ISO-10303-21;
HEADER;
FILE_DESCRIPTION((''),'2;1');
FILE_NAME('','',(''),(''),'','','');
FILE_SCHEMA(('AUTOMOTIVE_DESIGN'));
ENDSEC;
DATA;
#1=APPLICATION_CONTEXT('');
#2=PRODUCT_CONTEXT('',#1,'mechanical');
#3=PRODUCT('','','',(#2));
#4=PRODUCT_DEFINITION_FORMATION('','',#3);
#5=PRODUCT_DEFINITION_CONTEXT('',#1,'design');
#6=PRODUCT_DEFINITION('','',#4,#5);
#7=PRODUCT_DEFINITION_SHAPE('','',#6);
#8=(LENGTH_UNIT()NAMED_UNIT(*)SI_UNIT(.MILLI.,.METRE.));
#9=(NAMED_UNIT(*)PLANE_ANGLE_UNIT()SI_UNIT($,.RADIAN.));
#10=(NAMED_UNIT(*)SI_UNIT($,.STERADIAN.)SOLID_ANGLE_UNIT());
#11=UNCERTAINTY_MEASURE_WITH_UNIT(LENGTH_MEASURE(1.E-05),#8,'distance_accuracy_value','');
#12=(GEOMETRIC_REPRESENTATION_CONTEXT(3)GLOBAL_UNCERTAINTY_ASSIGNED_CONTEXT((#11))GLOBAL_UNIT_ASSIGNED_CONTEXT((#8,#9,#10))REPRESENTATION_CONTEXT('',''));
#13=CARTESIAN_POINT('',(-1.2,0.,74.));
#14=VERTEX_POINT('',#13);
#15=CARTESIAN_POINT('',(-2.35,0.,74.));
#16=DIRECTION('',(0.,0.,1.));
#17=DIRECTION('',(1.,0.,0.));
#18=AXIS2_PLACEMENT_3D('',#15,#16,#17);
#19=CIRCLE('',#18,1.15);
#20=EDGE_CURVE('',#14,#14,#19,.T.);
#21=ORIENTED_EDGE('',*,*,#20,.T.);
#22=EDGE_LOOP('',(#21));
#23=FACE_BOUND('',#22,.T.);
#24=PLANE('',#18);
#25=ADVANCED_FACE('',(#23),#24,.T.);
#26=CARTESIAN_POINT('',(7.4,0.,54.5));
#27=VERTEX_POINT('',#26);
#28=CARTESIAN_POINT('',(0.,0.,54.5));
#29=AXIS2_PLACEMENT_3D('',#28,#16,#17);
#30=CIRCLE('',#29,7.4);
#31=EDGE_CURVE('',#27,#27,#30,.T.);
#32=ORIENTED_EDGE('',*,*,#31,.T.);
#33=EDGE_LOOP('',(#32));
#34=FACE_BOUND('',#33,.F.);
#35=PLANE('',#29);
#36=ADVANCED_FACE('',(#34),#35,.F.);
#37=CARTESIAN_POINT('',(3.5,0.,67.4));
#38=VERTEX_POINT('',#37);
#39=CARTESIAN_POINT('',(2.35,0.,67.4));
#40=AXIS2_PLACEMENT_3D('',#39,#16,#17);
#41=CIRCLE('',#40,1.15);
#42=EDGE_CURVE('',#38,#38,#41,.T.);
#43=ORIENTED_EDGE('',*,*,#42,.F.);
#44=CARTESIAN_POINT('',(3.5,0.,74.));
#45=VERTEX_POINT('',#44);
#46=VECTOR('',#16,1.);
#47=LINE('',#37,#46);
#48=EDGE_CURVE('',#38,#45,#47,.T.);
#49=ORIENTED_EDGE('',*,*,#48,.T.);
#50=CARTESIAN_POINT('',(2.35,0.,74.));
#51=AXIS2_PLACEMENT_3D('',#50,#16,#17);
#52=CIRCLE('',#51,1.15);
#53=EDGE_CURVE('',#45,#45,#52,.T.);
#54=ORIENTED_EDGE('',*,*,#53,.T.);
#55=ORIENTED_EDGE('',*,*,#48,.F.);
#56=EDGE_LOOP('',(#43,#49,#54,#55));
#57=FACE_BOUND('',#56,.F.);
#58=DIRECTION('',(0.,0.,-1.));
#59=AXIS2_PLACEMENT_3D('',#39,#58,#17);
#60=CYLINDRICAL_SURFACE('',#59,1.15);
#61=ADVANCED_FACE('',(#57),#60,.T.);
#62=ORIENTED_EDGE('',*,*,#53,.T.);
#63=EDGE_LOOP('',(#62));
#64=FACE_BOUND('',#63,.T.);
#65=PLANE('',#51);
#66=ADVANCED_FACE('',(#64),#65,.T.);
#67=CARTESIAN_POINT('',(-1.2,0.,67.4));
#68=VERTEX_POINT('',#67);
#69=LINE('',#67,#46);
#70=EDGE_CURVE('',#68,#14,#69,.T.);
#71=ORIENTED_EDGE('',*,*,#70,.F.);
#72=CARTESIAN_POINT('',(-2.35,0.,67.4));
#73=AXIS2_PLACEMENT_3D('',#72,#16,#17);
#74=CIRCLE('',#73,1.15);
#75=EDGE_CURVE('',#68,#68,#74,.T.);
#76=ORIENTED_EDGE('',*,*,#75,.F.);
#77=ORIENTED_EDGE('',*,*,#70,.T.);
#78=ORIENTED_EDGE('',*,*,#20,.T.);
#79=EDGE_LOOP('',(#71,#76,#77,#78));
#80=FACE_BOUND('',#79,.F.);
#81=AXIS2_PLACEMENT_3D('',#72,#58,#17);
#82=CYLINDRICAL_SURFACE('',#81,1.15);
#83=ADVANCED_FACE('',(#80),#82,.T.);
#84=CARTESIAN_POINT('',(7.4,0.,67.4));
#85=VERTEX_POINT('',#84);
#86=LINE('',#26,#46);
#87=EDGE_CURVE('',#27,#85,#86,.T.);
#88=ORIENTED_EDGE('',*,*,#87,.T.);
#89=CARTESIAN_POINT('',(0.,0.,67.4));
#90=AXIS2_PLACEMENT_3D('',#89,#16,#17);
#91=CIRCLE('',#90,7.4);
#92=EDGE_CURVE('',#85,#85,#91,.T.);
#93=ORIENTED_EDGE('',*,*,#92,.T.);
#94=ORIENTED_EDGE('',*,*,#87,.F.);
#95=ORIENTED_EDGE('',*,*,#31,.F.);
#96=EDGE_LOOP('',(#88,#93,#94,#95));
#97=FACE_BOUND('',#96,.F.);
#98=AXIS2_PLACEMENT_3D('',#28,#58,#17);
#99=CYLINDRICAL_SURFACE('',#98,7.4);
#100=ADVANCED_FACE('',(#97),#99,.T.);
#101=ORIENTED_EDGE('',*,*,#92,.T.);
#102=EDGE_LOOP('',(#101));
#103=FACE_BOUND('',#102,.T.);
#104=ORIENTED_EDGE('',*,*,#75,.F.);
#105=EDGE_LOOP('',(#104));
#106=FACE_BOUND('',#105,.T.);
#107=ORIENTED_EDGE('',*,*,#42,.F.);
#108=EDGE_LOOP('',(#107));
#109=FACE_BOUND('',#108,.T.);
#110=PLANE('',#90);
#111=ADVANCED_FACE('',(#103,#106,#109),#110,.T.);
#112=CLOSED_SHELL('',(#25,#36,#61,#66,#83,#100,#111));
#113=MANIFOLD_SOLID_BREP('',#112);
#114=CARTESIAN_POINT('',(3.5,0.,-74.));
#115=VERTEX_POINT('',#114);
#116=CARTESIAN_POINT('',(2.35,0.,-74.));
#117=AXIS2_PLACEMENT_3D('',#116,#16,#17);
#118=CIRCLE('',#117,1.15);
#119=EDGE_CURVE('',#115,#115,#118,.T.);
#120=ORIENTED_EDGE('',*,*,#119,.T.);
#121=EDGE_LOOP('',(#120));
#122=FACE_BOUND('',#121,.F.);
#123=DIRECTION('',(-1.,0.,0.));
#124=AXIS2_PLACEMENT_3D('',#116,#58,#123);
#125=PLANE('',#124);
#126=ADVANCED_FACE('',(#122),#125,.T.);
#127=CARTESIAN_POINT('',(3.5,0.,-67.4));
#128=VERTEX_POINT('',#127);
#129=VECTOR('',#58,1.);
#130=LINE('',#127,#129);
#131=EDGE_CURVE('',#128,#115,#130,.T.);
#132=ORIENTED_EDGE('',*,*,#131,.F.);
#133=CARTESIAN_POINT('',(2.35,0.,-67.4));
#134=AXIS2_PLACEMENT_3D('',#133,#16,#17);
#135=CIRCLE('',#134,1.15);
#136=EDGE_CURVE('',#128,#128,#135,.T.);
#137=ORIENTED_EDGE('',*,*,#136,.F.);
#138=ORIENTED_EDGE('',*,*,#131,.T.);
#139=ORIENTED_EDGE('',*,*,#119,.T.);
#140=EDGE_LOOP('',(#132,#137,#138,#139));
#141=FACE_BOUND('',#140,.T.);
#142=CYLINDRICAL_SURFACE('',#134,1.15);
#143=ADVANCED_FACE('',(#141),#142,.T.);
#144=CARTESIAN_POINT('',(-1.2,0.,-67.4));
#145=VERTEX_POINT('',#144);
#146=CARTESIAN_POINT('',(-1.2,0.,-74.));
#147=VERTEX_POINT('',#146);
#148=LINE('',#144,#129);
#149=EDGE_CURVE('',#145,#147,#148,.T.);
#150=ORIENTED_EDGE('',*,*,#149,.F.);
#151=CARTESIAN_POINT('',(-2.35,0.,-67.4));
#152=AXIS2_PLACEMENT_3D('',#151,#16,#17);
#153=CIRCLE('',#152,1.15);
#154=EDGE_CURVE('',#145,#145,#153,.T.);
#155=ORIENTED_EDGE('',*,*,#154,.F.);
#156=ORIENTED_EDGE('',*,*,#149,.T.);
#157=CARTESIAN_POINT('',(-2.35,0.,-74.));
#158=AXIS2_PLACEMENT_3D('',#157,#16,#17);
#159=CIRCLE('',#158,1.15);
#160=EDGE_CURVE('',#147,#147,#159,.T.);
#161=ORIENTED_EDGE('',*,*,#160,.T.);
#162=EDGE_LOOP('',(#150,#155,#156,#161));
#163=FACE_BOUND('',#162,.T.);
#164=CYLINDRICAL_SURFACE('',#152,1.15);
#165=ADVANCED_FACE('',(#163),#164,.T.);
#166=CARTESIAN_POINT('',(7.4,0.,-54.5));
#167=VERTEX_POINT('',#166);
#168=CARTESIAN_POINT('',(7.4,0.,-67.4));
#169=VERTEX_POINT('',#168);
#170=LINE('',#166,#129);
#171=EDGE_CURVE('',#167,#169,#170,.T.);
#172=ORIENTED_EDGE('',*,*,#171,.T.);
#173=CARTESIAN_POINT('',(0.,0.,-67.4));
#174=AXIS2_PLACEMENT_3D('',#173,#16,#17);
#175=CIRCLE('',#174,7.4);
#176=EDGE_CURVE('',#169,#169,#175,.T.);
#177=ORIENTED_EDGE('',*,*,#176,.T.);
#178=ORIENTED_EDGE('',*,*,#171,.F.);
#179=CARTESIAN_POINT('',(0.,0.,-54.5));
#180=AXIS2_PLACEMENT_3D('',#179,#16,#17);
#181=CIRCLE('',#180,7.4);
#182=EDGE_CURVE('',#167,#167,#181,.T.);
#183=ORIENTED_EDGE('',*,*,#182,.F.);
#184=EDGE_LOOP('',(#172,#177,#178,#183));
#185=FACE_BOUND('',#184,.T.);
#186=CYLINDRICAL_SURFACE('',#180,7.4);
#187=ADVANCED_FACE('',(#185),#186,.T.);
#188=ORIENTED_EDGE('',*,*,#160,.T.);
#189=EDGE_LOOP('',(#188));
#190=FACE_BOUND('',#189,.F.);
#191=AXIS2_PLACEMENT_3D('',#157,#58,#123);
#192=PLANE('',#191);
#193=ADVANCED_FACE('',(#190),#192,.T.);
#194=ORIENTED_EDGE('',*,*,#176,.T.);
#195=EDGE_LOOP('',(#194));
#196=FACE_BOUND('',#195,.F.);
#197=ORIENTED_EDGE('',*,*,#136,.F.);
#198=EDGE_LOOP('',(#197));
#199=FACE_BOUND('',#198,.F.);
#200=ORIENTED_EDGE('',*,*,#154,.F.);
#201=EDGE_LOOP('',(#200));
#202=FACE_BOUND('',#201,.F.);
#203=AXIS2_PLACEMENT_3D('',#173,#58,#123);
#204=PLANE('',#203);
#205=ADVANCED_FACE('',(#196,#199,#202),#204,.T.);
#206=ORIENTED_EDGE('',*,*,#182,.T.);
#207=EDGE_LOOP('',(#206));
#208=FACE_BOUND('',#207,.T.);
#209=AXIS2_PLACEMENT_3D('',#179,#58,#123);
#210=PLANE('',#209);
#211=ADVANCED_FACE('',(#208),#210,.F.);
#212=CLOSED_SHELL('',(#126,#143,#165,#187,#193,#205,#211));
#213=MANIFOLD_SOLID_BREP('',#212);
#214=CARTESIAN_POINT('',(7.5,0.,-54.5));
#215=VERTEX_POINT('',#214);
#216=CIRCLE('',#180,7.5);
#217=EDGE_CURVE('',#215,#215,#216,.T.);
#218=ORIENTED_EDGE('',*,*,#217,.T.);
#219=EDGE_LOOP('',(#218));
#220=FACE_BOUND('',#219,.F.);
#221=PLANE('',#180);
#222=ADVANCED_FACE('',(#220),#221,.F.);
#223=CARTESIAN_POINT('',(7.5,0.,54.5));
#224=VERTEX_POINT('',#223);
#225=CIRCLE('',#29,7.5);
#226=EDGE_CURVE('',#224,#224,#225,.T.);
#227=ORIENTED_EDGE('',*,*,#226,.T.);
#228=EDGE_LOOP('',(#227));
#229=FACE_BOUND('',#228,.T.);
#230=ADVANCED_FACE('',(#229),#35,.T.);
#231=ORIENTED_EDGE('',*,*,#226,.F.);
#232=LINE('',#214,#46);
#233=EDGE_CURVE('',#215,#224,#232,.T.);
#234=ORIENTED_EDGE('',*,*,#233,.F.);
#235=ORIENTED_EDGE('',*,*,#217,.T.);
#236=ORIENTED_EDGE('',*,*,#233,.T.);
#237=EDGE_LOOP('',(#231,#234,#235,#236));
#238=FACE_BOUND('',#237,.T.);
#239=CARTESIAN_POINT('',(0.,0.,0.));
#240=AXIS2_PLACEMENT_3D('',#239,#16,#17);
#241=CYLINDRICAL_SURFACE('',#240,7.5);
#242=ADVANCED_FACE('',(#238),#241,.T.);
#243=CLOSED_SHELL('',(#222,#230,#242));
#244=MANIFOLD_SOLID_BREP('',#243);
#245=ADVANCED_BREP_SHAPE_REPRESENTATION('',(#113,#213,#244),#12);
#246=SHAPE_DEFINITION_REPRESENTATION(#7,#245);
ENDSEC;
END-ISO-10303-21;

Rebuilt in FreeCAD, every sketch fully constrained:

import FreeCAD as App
import Part
import Sketcher

V = App.Vector
Q = App.Units.Quantity

doc = App.newDocument("Part")
body = doc.addObject("PartDesign::Body", "Body")

# Sketch on XY plane
sketch1 = body.newObject("Sketcher::SketchObject", "Sketch")
sketch1.AttachmentSupport = (doc.getObject("XY_Plane"), [""])
sketch1.MapMode = "FlatFace"
sketch1.addGeometry(Part.Circle(V(0, 0, 0), V(0, 0, 1), 7.5), False)
sketch1.addConstraint([
    Sketcher.Constraint("Coincident", 0, 3, -1, 1),
    Sketcher.Constraint("Diameter", 0, Q("15 mm")),
])
pad1 = body.newObject("PartDesign::Pad", "Pad")
pad1.Profile = sketch1
pad1.Length = 109
pad1.Midplane = True
body2 = doc.addObject("PartDesign::Body", "Body001")

# Sketch on XY plane
sketch2 = body2.newObject("Sketcher::SketchObject", "Sketch001")
sketch2.AttachmentSupport = (doc.getObject("XY_Plane001"), [""])
sketch2.MapMode = "FlatFace"
sketch2.AttachmentOffset = App.Placement(V(0, 0, 54.5), App.Rotation())
sketch2.addGeometry(Part.Circle(V(0, 0, 0), V(0, 0, 1), 7.4), False)
sketch2.addConstraint([
    Sketcher.Constraint("Coincident", 0, 3, -1, 1),
    Sketcher.Constraint("Diameter", 0, Q("14.8 mm")),
])
pad2 = body2.newObject("PartDesign::Pad", "Pad001")
pad2.Profile = sketch2
pad2.Length = 12.9

# Sketch on XY plane
sketch3 = body2.newObject("Sketcher::SketchObject", "Sketch002")
sketch3.AttachmentSupport = (doc.getObject("XY_Plane001"), [""])
sketch3.MapMode = "FlatFace"
sketch3.AttachmentOffset = App.Placement(V(0, 0, 67.4), App.Rotation())
sketch3.addGeometry([
    Part.Circle(V(-2.35, 0, 0), V(0, 0, 1), 1.15),
    Part.Circle(V(2.35, 0, 0), V(0, 0, 1), 1.15),
], False)
sketch3.addConstraint([
    Sketcher.Constraint("Equal", 0, 1),
    Sketcher.Constraint("Symmetric", 0, 3, 1, 3, -1, 1),
    Sketcher.Constraint("PointOnObject", 0, 3, -1),
    Sketcher.Constraint("Diameter", 0, Q("2.3 mm")),
    Sketcher.Constraint("DistanceX", 0, 3, 1, 3, Q("4.7 mm")),
])
pad3 = body2.newObject("PartDesign::Pad", "Pad002")
pad3.Profile = sketch3
pad3.Length = 6.6
body3 = doc.addObject("PartDesign::Body", "Body002")
doc.recompute()

mirroring = doc.addObject("Part::Mirroring", "Mirroring")
mirroring.Source = body2
mirroring.Base = V(0, 0, 0)
mirroring.Normal = V(0, 0, 1)
body3.BaseFeature = mirroring
doc.recompute()
mirroring.Visibility = False

doc.recompute()
